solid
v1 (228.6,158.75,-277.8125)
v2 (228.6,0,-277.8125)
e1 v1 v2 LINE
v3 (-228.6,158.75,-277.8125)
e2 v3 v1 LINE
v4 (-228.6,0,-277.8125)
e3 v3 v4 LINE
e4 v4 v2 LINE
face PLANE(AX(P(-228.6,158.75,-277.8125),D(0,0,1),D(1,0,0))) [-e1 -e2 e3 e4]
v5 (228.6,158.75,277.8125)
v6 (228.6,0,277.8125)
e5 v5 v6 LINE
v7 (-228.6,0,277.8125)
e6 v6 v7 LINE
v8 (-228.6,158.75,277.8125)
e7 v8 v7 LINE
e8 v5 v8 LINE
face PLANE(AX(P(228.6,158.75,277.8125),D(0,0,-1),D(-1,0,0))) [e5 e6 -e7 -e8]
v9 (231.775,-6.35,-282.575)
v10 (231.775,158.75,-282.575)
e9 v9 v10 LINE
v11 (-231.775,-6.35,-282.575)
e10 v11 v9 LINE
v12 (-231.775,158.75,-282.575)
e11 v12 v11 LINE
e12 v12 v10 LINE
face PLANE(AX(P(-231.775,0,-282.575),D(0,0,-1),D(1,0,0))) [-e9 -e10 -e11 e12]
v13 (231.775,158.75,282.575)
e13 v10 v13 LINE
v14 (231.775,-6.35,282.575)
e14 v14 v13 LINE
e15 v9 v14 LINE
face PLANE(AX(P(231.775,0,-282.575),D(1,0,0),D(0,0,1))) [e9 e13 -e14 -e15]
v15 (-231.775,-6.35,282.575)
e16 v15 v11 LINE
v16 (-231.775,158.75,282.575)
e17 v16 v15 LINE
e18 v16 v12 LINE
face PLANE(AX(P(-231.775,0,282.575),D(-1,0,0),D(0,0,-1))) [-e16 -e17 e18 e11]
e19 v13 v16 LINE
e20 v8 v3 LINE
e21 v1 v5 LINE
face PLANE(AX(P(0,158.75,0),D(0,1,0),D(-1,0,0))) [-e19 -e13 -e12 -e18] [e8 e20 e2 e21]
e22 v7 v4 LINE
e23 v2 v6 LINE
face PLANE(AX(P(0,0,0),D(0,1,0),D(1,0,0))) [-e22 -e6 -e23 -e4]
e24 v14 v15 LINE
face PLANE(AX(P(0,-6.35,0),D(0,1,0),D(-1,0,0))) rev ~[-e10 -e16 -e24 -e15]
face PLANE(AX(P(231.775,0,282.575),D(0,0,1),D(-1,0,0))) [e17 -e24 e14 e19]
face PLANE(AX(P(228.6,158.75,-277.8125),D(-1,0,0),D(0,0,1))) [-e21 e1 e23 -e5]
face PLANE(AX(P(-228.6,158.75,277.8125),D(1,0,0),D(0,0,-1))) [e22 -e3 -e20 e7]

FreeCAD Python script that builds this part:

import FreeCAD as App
import Part
import Sketcher
from FreeCAD import Vector
Q = App.Units.Quantity


def add_polygon(sketch, points):
    """Adds a closed chain of lines whose ends are joined by coincident constraints."""
    first, n = sketch.GeometryCount, len(points)
    for a, b in zip(points, points[1:] + points[:1]):
        sketch.addGeometry(Part.LineSegment(App.Vector(*a, 0), App.Vector(*b, 0)), False)
    for i in range(n):
        sketch.addConstraint(Sketcher.Constraint("Coincident", first + i, 2, first + (i + 1) % n, 1))

doc = App.newDocument("Part")
params = doc.addObject("Spreadsheet::Sheet", "Params")
for row, (alias, value) in enumerate([
    ("sketch1_width", "18.25 in"),
    ("sketch1_height", "22.25 in"),
    ("pad1_length", "6.25 in"),
    ("pad1_length2", "0.25 in"),
    ("sketch2_width", "18 in"),
    ("sketch2_height", "21.875 in"),
    ("pocket1_length", "6.25 in"),
], start=1):
    params.set(f"A{row}", alias)
    params.set(f"B{row}", "=" + value)
    params.setAlias(f"B{row}", alias)

body = doc.addObject("PartDesign::Body", "Body")

# Sketch on XZ plane
sketch1 = doc.addObject("Sketcher::SketchObject", "Sketch")
body.addObject(sketch1)
sketch1.AttachmentSupport = (doc.XZ_Plane, [""])
sketch1.MapMode = "FlatFace"
add_polygon(sketch1, [(-232, 283), (232, 283), (232, -283), (-232, -283)])  # lines 0-3
sketch1.addConstraint([
    Sketcher.Constraint("Horizontal", 0),
    Sketcher.Constraint("Vertical", 1),
    Sketcher.Constraint("Horizontal", 2),
    Sketcher.Constraint("Vertical", 3),
    Sketcher.Constraint("Symmetric", 0, 2, 2, 2, -1, 1),
    Sketcher.Constraint("DistanceX", 0, 1, 0, 2, Q("18.25 in")),
    Sketcher.Constraint("DistanceY", 1, 2, 1, 1, Q("22.25 in")),
])
sketch1.setExpression("Constraints[9]", "Params.sketch1_width")
sketch1.setExpression("Constraints[10]", "Params.sketch1_height")
pad1 = doc.addObject("PartDesign::Pad", "Pad")
body.addObject(pad1)
pad1.Profile = sketch1
pad1.Type = "TwoLengths"
pad1.setExpression("Length", "Params.pad1_length")
pad1.setExpression("Length2", "Params.pad1_length2")
pad1.Reversed = True

# Sketch on XZ plane
sketch2 = doc.addObject("Sketcher::SketchObject", "Sketch001")
body.addObject(sketch2)
sketch2.AttachmentSupport = (doc.XZ_Plane, [""])
sketch2.MapMode = "FlatFace"
sketch2.AttachmentOffset = App.Placement(Vector(0, 0, -6.25 * 25.4), App.Rotation())
add_polygon(sketch2, [(-229, 278), (229, 278), (229, -278), (-229, -278)])  # lines 0-3
sketch2.addConstraint([
    Sketcher.Constraint("Horizontal", 0),
    Sketcher.Constraint("Vertical", 1),
    Sketcher.Constraint("Horizontal", 2),
    Sketcher.Constraint("Vertical", 3),
    Sketcher.Constraint("Symmetric", 0, 2, 2, 2, -1, 1),
    Sketcher.Constraint("DistanceX", 0, 1, 0, 2, Q("18 in")),
    Sketcher.Constraint("DistanceY", 1, 2, 1, 1, Q("21.875 in")),
])
sketch2.setExpression("Constraints[9]", "Params.sketch2_width")
sketch2.setExpression("Constraints[10]", "Params.sketch2_height")
pocket1 = doc.addObject("PartDesign::Pocket", "Pocket")
body.addObject(pocket1)
pocket1.Profile = sketch2
pocket1.setExpression("Length", "Params.pocket1_length")
pocket1.Reversed = True

doc.recompute()
